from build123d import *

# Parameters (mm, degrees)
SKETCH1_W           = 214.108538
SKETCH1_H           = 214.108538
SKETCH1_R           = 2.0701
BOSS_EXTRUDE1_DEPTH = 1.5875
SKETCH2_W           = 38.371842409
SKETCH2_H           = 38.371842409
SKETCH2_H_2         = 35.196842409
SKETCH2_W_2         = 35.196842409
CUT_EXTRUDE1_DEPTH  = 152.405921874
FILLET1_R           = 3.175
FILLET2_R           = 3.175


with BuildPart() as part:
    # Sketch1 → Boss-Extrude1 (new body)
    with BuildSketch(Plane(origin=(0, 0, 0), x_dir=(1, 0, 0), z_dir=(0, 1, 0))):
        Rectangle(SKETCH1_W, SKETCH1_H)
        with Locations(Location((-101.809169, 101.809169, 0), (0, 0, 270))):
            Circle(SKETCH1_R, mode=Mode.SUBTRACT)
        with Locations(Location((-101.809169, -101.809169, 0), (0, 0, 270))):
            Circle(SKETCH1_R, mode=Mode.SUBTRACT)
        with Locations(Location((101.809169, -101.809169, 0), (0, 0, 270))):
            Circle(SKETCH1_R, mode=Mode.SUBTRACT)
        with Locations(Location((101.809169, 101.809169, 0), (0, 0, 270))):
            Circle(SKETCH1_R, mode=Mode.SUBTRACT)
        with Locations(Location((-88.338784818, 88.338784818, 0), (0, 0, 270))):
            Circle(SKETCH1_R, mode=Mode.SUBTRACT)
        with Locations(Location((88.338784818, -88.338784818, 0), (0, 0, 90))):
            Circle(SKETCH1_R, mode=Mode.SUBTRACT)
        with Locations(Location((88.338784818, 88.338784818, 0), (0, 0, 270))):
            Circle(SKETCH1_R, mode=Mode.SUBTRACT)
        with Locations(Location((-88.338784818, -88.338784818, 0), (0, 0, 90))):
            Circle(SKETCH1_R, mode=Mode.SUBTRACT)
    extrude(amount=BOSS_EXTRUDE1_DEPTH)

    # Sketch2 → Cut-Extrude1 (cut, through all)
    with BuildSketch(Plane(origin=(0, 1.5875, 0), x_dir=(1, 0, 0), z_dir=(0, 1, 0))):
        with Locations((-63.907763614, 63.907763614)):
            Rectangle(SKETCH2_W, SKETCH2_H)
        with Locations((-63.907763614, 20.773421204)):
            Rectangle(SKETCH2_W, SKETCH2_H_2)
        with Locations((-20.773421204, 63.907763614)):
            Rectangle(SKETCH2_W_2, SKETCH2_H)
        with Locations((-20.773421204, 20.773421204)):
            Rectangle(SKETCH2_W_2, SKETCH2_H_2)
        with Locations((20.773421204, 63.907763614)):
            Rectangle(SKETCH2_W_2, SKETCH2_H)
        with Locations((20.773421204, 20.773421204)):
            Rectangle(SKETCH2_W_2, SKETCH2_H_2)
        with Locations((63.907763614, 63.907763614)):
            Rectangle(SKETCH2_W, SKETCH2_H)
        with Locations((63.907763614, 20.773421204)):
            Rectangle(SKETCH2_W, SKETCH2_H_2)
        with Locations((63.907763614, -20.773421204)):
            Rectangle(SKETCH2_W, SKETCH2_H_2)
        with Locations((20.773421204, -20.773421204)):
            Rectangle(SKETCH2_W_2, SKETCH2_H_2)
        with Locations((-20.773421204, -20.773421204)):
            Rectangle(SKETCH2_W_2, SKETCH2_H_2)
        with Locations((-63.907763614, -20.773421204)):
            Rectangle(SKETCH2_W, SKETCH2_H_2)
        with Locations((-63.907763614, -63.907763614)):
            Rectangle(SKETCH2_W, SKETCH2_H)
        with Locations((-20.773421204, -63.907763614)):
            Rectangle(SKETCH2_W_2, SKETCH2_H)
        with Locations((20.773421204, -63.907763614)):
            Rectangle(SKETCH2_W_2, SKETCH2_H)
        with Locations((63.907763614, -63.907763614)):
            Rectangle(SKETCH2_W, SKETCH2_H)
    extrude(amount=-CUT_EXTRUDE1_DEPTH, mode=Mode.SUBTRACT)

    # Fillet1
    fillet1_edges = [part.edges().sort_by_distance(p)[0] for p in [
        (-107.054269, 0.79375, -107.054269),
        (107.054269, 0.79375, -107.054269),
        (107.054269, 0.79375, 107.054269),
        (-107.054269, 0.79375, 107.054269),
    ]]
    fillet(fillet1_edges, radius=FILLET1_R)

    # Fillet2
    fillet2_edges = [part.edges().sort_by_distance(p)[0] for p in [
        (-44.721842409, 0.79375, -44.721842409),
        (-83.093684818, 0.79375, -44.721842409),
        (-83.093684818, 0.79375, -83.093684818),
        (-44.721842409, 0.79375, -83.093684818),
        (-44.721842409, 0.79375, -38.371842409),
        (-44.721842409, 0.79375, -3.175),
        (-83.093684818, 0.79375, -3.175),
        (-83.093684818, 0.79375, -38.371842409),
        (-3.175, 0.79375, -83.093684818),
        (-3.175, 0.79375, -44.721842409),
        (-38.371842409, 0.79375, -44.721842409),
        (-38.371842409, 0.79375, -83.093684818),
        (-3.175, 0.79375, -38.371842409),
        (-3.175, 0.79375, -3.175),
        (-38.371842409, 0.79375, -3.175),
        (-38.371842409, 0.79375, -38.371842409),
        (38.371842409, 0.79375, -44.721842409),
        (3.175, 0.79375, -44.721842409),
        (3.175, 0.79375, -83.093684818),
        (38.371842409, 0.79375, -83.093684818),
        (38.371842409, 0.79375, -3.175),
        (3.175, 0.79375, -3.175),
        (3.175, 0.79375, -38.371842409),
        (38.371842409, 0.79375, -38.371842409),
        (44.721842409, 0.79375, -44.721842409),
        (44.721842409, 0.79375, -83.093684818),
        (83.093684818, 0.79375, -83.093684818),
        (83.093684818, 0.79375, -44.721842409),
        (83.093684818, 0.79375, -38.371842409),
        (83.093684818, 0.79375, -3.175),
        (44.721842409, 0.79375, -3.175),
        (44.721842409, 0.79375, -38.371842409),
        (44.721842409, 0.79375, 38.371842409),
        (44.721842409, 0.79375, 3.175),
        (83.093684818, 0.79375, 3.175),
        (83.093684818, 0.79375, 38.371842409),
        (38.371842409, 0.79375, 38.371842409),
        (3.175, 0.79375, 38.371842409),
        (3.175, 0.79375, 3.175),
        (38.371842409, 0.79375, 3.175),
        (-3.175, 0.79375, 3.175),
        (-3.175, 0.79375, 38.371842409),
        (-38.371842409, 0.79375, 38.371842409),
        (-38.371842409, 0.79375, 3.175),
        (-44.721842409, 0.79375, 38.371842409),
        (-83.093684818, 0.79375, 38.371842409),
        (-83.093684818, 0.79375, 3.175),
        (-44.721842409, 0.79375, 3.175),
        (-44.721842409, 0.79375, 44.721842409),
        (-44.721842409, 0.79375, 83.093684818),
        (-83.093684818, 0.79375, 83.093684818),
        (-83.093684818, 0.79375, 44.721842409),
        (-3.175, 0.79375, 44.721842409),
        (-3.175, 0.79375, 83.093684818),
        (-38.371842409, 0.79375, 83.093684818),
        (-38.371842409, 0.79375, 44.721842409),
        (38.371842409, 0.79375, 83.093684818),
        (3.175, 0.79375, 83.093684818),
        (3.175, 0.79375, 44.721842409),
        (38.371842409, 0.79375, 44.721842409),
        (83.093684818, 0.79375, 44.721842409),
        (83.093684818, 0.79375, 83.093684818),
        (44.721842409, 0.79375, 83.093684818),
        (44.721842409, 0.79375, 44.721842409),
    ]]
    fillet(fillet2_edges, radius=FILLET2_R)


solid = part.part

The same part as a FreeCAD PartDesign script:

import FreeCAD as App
import Part
import Sketcher

V = App.Vector
Q = App.Units.Quantity


def edges_at(feature, points):
    """Names of the edges that pass closest to the given points."""
    edges = feature.Shape.Edges
    near = lambda p: min(range(len(edges)), key=lambda i: edges[i].distToShape(Part.Vertex(*p))[0])
    return sorted({f"Edge{near(p) + 1}" for p in points})


def add_polygon(sketch, points):
    """Adds a closed chain of lines whose ends are joined by coincident constraints."""
    first, n = sketch.GeometryCount, len(points)
    for a, b in zip(points, points[1:] + points[:1]):
        sketch.addGeometry(Part.LineSegment(App.Vector(*a, 0), App.Vector(*b, 0)), False)
    for i in range(n):
        sketch.addConstraint(Sketcher.Constraint("Coincident", first + i, 2, first + (i + 1) % n, 1))

doc = App.newDocument("Part")
body = doc.addObject("PartDesign::Body", "Body")

sketch1 = doc.addObject("Sketcher::SketchObject", "Sketch")
body.addObject(sketch1)
sketch1.AttachmentSupport = (doc.XZ_Plane, [""])
sketch1.MapMode = "FlatFace"
add_polygon(sketch1, [(-107.1, -107.1), (-107.1, 107.1), (107.1, 107.1), (107.1, -107.1)])
sketch1.addGeometry(Part.Circle(V(-101.8, 101.8, 0), V(0, 0, 1), 2.1), False)
sketch1.addGeometry(Part.Circle(V(-88.3, 88.3, 0), V(0, 0, 1), 2.1), False)
sketch1.addGeometry(Part.Circle(V(101.8, 101.8, 0), V(0, 0, 1), 2.1), False)
sketch1.addGeometry(Part.Circle(V(88.3, 88.3, 0), V(0, 0, 1), 2.1), False)
sketch1.addGeometry(Part.Circle(V(-88.3, -88.3, 0), V(0, 0, 1), 2.1), False)
sketch1.addGeometry(Part.Circle(V(-101.8, -101.8, 0), V(0, 0, 1), 2.1), False)
sketch1.addGeometry(Part.Circle(V(88.3, -88.3, 0), V(0, 0, 1), 2.1), False)
sketch1.addGeometry(Part.Circle(V(101.8, -101.8, 0), V(0, 0, 1), 2.1), False)
sketch1.addConstraint(Sketcher.Constraint("Vertical", 0))
sketch1.addConstraint(Sketcher.Constraint("Horizontal", 1))
sketch1.addConstraint(Sketcher.Constraint("Vertical", 2))
sketch1.addConstraint(Sketcher.Constraint("Horizontal", 3))
sketch1.addConstraint(Sketcher.Constraint("Equal", 4, 5))
sketch1.addConstraint(Sketcher.Constraint("Equal", 5, 6))
sketch1.addConstraint(Sketcher.Constraint("Equal", 6, 7))
sketch1.addConstraint(Sketcher.Constraint("Equal", 7, 8))
sketch1.addConstraint(Sketcher.Constraint("Equal", 8, 9))
sketch1.addConstraint(Sketcher.Constraint("Equal", 9, 10))
sketch1.addConstraint(Sketcher.Constraint("Equal", 10, 11))
sketch1.addConstraint(Sketcher.Constraint("Symmetric", 7, 3, 8, 3, -1, 1))
sketch1.addConstraint(Sketcher.Constraint("Symmetric", 6, 3, 9, 3, -1, 1))
sketch1.addConstraint(Sketcher.Constraint("Symmetric", 5, 3, 10, 3, -1, 1))
sketch1.addConstraint(Sketcher.Constraint("Symmetric", 4, 3, 11, 3, -1, 1))
sketch1.addConstraint(Sketcher.Constraint("Symmetric", 0, 2, 2, 2, -1, 1))
sketch1.addConstraint(Sketcher.Constraint("Symmetric", 4, 3, 6, 3, -2))
sketch1.addConstraint(Sketcher.Constraint("Symmetric", 5, 3, 7, 3, -2))
sketch1.addConstraint(Sketcher.Constraint("Equal", 3, 0))
sketch1.addConstraint(Sketcher.Constraint("Diameter", 4, Q("0.163 in")))
sketch1.addConstraint(Sketcher.Constraint("DistanceX", 0, 2, 4, 3, Q("0.2065 in")))
sketch1.addConstraint(Sketcher.Constraint("DistanceY", 4, 3, 0, 2, Q("0.2065 in")))
sketch1.addConstraint(Sketcher.Constraint("DistanceX", 1, 1, 1, 2, 214.108538))
sketch1.addConstraint(Sketcher.Constraint("DistanceX", 5, 3, 7, 3, 176.67757))
sketch1.addConstraint(Sketcher.Constraint("DistanceY", 8, 3, 5, 3, 176.67757))
pad1 = doc.addObject("PartDesign::Pad", "Pad")
body.addObject(pad1)
pad1.Profile = sketch1
pad1.Length = Q("0.0625 in")
pad1.Reversed = True

sketch2 = doc.addObject("Sketcher::SketchObject", "Sketch001")
body.addObject(sketch2)
sketch2.AttachmentSupport = (doc.XZ_Plane, [""])
sketch2.MapMode = "FlatFace"
sketch2.AttachmentOffset = App.Placement(V(0, 0, -0.0625 * 25.4), App.Rotation())
add_polygon(sketch2, [(-83, -83), (-83, -45), (-45, -45), (-45, -83)])
add_polygon(sketch2, [(-83, -38), (-83, -3), (-45, -3), (-45, -38)])
add_polygon(sketch2, [(-38, -83), (-38, -45), (-3, -45), (-3, -83)])
add_polygon(sketch2, [(-38, -38), (-38, -3), (-3, -3), (-3, -38)])
add_polygon(sketch2, [(3, -83), (3, -45), (38, -45), (38, -83)])
add_polygon(sketch2, [(3, -38), (3, -3), (38, -3), (38, -38)])
add_polygon(sketch2, [(45, -83), (45, -45), (83, -45), (83, -83)])
add_polygon(sketch2, [(45, -38), (45, -3), (83, -3), (83, -38)])
add_polygon(sketch2, [(45, 3), (45, 38), (83, 38), (83, 3)])
add_polygon(sketch2, [(3, 3), (3, 38), (38, 38), (38, 3)])
add_polygon(sketch2, [(-38, 3), (-38, 38), (-3, 38), (-3, 3)])
add_polygon(sketch2, [(-83, 3), (-83, 38), (-45, 38), (-45, 3)])
add_polygon(sketch2, [(-83, 45), (-83, 83), (-45, 83), (-45, 45)])
add_polygon(sketch2, [(-38, 45), (-38, 83), (-3, 83), (-3, 45)])
add_polygon(sketch2, [(3, 45), (3, 83), (38, 83), (38, 45)])
add_polygon(sketch2, [(45, 45), (45, 83), (83, 83), (83, 45)])
sketch2.addConstraint(Sketcher.Constraint("Vertical", 0))
sketch2.addConstraint(Sketcher.Constraint("Horizontal", 1))
sketch2.addConstraint(Sketcher.Constraint("Vertical", 2))
sketch2.addConstraint(Sketcher.Constraint("Horizontal", 3))
sketch2.addConstraint(Sketcher.Constraint("Vertical", 4))
sketch2.addConstraint(Sketcher.Constraint("Horizontal", 5))
sketch2.addConstraint(Sketcher.Constraint("Vertical", 6))
sketch2.addConstraint(Sketcher.Constraint("Horizontal", 7))
sketch2.addConstraint(Sketcher.Constraint("Vertical", 8))
sketch2.addConstraint(Sketcher.Constraint("Horizontal", 9))
sketch2.addConstraint(Sketcher.Constraint("Vertical", 10))
sketch2.addConstraint(Sketcher.Constraint("Horizontal", 11))
sketch2.addConstraint(Sketcher.Constraint("Vertical", 12))
sketch2.addConstraint(Sketcher.Constraint("Horizontal", 13))
sketch2.addConstraint(Sketcher.Constraint("Vertical", 14))
sketch2.addConstraint(Sketcher.Constraint("Horizontal", 15))
sketch2.addConstraint(Sketcher.Constraint("Vertical", 16))
sketch2.addConstraint(Sketcher.Constraint("Horizontal", 17))
sketch2.addConstraint(Sketcher.Constraint("Vertical", 18))
sketch2.addConstraint(Sketcher.Constraint("Horizontal", 19))
sketch2.addConstraint(Sketcher.Constraint("Vertical", 20))
sketch2.addConstraint(Sketcher.Constraint("Horizontal", 21))
sketch2.addConstraint(Sketcher.Constraint("Vertical", 22))
sketch2.addConstraint(Sketcher.Constraint("Horizontal", 23))
sketch2.addConstraint(Sketcher.Constraint("Vertical", 24))
sketch2.addConstraint(Sketcher.Constraint("Horizontal", 25))
sketch2.addConstraint(Sketcher.Constraint("Vertical", 26))
sketch2.addConstraint(Sketcher.Constraint("Horizontal", 27))
sketch2.addConstraint(Sketcher.Constraint("Vertical", 28))
sketch2.addConstraint(Sketcher.Constraint("Horizontal", 29))
sketch2.addConstraint(Sketcher.Constraint("Vertical", 30))
sketch2.addConstraint(Sketcher.Constraint("Horizontal", 31))
sketch2.addConstraint(Sketcher.Constraint("Vertical", 32))
sketch2.addConstraint(Sketcher.Constraint("Horizontal", 33))
sketch2.addConstraint(Sketcher.Constraint("Vertical", 34))
sketch2.addConstraint(Sketcher.Constraint("Horizontal", 35))
sketch2.addConstraint(Sketcher.Constraint("Vertical", 36))
sketch2.addConstraint(Sketcher.Constraint("Horizontal", 37))
sketch2.addConstraint(Sketcher.Constraint("Vertical", 38))
sketch2.addConstraint(Sketcher.Constraint("Horizontal", 39))
sketch2.addConstraint(Sketcher.Constraint("Vertical", 40))
sketch2.addConstraint(Sketcher.Constraint("Horizontal", 41))
sketch2.addConstraint(Sketcher.Constraint("Vertical", 42))
sketch2.addConstraint(Sketcher.Constraint("Horizontal", 43))
sketch2.addConstraint(Sketcher.Constraint("Vertical", 44))
sketch2.addConstraint(Sketcher.Constraint("Horizontal", 45))
sketch2.addConstraint(Sketcher.Constraint("Vertical", 46))
sketch2.addConstraint(Sketcher.Constraint("Horizontal", 47))
sketch2.addConstraint(Sketcher.Constraint("Vertical", 48))
sketch2.addConstraint(Sketcher.Constraint("Horizontal", 49))
sketch2.addConstraint(Sketcher.Constraint("Vertical", 50))
sketch2.addConstraint(Sketcher.Constraint("Horizontal", 51))
sketch2.addConstraint(Sketcher.Constraint("Vertical", 52))
sketch2.addConstraint(Sketcher.Constraint("Horizontal", 53))
sketch2.addConstraint(Sketcher.Constraint("Vertical", 54))
sketch2.addConstraint(Sketcher.Constraint("Horizontal", 55))
sketch2.addConstraint(Sketcher.Constraint("Vertical", 56))
sketch2.addConstraint(Sketcher.Constraint("Horizontal", 57))
sketch2.addConstraint(Sketcher.Constraint("Vertical", 58))
sketch2.addConstraint(Sketcher.Constraint("Horizontal", 59))
sketch2.addConstraint(Sketcher.Constraint("Vertical", 60))
sketch2.addConstraint(Sketcher.Constraint("Horizontal", 61))
sketch2.addConstraint(Sketcher.Constraint("Vertical", 62))
sketch2.addConstraint(Sketcher.Constraint("Horizontal", 63))
sketch2.addConstraint(Sketcher.Constraint("Symmetric", 6, 2, 32, 2, -1, 1))
sketch2.addConstraint(Sketcher.Constraint("Symmetric", 4, 2, 34, 2, -1, 1))
sketch2.addConstraint(Sketcher.Constraint("Symmetric", 14, 2, 36, 2, -1, 1))
sketch2.addConstraint(Sketcher.Constraint("Symmetric", 12, 2, 38, 2, -1, 1))
sketch2.addConstraint(Sketcher.Constraint("Symmetric", 22, 2, 40, 2, -1, 1))
sketch2.addConstraint(Sketcher.Constraint("Symmetric", 20, 2, 42, 2, -1, 1))
sketch2.addConstraint(Sketcher.Constraint("Symmetric", 30, 2, 44, 2, -1, 1))
sketch2.addConstraint(Sketcher.Constraint("Symmetric", 28, 2, 46, 2, -1, 1))
sketch2.addConstraint(Sketcher.Constraint("Symmetric", 26, 2, 48, 2, -1, 1))
sketch2.addConstraint(Sketcher.Constraint("Symmetric", 24, 2, 50, 2, -1, 1))
sketch2.addConstraint(Sketcher.Constraint("Symmetric", 18, 2, 52, 2, -1, 1))
sketch2.addConstraint(Sketcher.Constraint("Symmetric", 16, 2, 54, 2, -1, 1))
sketch2.addConstraint(Sketcher.Constraint("Symmetric", 10, 2, 56, 2, -1, 1))
sketch2.addConstraint(Sketcher.Constraint("Symmetric", 8, 2, 58, 2, -1, 1))
sketch2.addConstraint(Sketcher.Constraint("Symmetric", 2, 2, 60, 2, -1, 1))
sketch2.addConstraint(Sketcher.Constraint("Symmetric", 0, 2, 62, 2, -1, 1))
sketch2.addConstraint(Sketcher.Constraint("Symmetric", 9, 2, 16, 2, -2))
sketch2.addConstraint(Sketcher.Constraint("Symmetric", 11, 2, 18, 2, -2))
sketch2.addConstraint(Sketcher.Constraint("Symmetric", 13, 2, 20, 2, -2))
sketch2.addConstraint(Sketcher.Constraint("Symmetric", 15, 2, 22, 2, -2))
sketch2.addConstraint(Sketcher.Constraint("Symmetric", 1, 2, 24, 2, -2))
sketch2.addConstraint(Sketcher.Constraint("Symmetric", 3, 2, 26, 2, -2))
sketch2.addConstraint(Sketcher.Constraint("Symmetric", 5, 2, 28, 2, -2))
sketch2.addConstraint(Sketcher.Constraint("Symmetric", 7, 2, 30, 2, -2))
sketch2.addConstraint(Sketcher.Constraint("Horizontal", 1, 2, 8, 2))
sketch2.addConstraint(Sketcher.Constraint("Horizontal", 3, 2, 10, 2))
sketch2.addConstraint(Sketcher.Constraint("Horizontal", 5, 2, 12, 2))
sketch2.addConstraint(Sketcher.Constraint("Horizontal", 7, 2, 14, 2))
sketch2.addConstraint(Sketcher.Constraint("Vertical", 3, 2, 4, 2))
sketch2.addConstraint(Sketcher.Constraint("Vertical", 2, 2, 5, 2))
sketch2.addConstraint(Sketcher.Constraint("Vertical", 11, 2, 12, 2))
sketch2.addConstraint(Sketcher.Constraint("Vertical", 10, 2, 13, 2))
sketch2.addConstraint(Sketcher.Constraint("Equal", 63, 0))
sketch2.addConstraint(Sketcher.Constraint("Equal", 59, 4))
sketch2.addConstraint(Sketcher.Constraint("DistanceY", 4, 2, -1, 1, Q("0.125 in")))
sketch2.addConstraint(Sketcher.Constraint("DistanceX", 9, 2, -1, 1, Q("0.125 in")))
sketch2.addConstraint(Sketcher.Constraint("DistanceX", 1, 1, 1, 2, 38.371842))
sketch2.addConstraint(Sketcher.Constraint("DistanceX", 9, 1, 9, 2, 35.196842))
sketch2.addConstraint(Sketcher.Constraint("DistanceX", 0, 2, -1, 1, 83.093685))
sketch2.addConstraint(Sketcher.Constraint("DistanceY", 0, 2, -1, 1, 44.721842))
pocket1 = doc.addObject("PartDesign::Pocket", "Pocket")
body.addObject(pocket1)
pocket1.Profile = sketch2
pocket1.Type = "ThroughAll"
pocket1.Reversed = True
doc.recompute()

fillet = doc.addObject("PartDesign::Fillet", "Fillet")
body.addObject(fillet)
fillet.Base = (pocket1, edges_at(pocket1, [
    (-107.054, 0.794, -107.054),
    (107.054, 0.794, -107.054),
    (107.054, 0.794, 107.054),
    (-107.054, 0.794, 107.054),
]))
fillet.Radius = Q("0.125 in")
doc.recompute()

fillet2 = doc.addObject("PartDesign::Fillet", "Fillet001")
body.addObject(fillet2)
fillet2.Base = (fillet, edges_at(fillet, [
    (-44.722, 0.794, -44.722),
    (-83.094, 0.794, -44.722),
    (-83.094, 0.794, -83.094),
    (-44.722, 0.794, -83.094),
    (-44.722, 0.794, -38.372),
    (-44.722, 0.794, -3.175),
    (-83.094, 0.794, -3.175),
    (-83.094, 0.794, -38.372),
    (-3.175, 0.794, -83.094),
    (-3.175, 0.794, -44.722),
    (-38.372, 0.794, -44.722),
    (-38.372, 0.794, -83.094),
    (-3.175, 0.794, -38.372),
    (-3.175, 0.794, -3.175),
    (-38.372, 0.794, -3.175),
    (-38.372, 0.794, -38.372),
    (38.372, 0.794, -44.722),
    (3.175, 0.794, -44.722),
    (3.175, 0.794, -83.094),
    (38.372, 0.794, -83.094),
    (38.372, 0.794, -3.175),
    (3.175, 0.794, -3.175),
    (3.175, 0.794, -38.372),
    (38.372, 0.794, -38.372),
    (44.722, 0.794, -44.722),
    (44.722, 0.794, -83.094),
    (83.094, 0.794, -83.094),
    (83.094, 0.794, -44.722),
    (83.094, 0.794, -38.372),
    (83.094, 0.794, -3.175),
    (44.722, 0.794, -3.175),
    (44.722, 0.794, -38.372),
    (44.722, 0.794, 38.372),
    (44.722, 0.794, 3.175),
    (83.094, 0.794, 3.175),
    (83.094, 0.794, 38.372),
    (38.372, 0.794, 38.372),
    (3.175, 0.794, 38.372),
    (3.175, 0.794, 3.175),
    (38.372, 0.794, 3.175),
    (-3.175, 0.794, 3.175),
    (-3.175, 0.794, 38.372),
    (-38.372, 0.794, 38.372),
    (-38.372, 0.794, 3.175),
    (-44.722, 0.794, 38.372),
    (-83.094, 0.794, 38.372),
    (-83.094, 0.794, 3.175),
    (-44.722, 0.794, 3.175),
    (-44.722, 0.794, 44.722),
    (-44.722, 0.794, 83.094),
    (-83.094, 0.794, 83.094),
    (-83.094, 0.794, 44.722),
    (-3.175, 0.794, 44.722),
    (-3.175, 0.794, 83.094),
    (-38.372, 0.794, 83.094),
    (-38.372, 0.794, 44.722),
    (38.372, 0.794, 83.094),
    (3.175, 0.794, 83.094),
    (3.175, 0.794, 44.722),
    (38.372, 0.794, 44.722),
    (83.094, 0.794, 44.722),
    (83.094, 0.794, 83.094),
    (44.722, 0.794, 83.094),
    (44.722, 0.794, 44.722),
]))
fillet2.Radius = Q("0.125 in")

doc.recompute()
